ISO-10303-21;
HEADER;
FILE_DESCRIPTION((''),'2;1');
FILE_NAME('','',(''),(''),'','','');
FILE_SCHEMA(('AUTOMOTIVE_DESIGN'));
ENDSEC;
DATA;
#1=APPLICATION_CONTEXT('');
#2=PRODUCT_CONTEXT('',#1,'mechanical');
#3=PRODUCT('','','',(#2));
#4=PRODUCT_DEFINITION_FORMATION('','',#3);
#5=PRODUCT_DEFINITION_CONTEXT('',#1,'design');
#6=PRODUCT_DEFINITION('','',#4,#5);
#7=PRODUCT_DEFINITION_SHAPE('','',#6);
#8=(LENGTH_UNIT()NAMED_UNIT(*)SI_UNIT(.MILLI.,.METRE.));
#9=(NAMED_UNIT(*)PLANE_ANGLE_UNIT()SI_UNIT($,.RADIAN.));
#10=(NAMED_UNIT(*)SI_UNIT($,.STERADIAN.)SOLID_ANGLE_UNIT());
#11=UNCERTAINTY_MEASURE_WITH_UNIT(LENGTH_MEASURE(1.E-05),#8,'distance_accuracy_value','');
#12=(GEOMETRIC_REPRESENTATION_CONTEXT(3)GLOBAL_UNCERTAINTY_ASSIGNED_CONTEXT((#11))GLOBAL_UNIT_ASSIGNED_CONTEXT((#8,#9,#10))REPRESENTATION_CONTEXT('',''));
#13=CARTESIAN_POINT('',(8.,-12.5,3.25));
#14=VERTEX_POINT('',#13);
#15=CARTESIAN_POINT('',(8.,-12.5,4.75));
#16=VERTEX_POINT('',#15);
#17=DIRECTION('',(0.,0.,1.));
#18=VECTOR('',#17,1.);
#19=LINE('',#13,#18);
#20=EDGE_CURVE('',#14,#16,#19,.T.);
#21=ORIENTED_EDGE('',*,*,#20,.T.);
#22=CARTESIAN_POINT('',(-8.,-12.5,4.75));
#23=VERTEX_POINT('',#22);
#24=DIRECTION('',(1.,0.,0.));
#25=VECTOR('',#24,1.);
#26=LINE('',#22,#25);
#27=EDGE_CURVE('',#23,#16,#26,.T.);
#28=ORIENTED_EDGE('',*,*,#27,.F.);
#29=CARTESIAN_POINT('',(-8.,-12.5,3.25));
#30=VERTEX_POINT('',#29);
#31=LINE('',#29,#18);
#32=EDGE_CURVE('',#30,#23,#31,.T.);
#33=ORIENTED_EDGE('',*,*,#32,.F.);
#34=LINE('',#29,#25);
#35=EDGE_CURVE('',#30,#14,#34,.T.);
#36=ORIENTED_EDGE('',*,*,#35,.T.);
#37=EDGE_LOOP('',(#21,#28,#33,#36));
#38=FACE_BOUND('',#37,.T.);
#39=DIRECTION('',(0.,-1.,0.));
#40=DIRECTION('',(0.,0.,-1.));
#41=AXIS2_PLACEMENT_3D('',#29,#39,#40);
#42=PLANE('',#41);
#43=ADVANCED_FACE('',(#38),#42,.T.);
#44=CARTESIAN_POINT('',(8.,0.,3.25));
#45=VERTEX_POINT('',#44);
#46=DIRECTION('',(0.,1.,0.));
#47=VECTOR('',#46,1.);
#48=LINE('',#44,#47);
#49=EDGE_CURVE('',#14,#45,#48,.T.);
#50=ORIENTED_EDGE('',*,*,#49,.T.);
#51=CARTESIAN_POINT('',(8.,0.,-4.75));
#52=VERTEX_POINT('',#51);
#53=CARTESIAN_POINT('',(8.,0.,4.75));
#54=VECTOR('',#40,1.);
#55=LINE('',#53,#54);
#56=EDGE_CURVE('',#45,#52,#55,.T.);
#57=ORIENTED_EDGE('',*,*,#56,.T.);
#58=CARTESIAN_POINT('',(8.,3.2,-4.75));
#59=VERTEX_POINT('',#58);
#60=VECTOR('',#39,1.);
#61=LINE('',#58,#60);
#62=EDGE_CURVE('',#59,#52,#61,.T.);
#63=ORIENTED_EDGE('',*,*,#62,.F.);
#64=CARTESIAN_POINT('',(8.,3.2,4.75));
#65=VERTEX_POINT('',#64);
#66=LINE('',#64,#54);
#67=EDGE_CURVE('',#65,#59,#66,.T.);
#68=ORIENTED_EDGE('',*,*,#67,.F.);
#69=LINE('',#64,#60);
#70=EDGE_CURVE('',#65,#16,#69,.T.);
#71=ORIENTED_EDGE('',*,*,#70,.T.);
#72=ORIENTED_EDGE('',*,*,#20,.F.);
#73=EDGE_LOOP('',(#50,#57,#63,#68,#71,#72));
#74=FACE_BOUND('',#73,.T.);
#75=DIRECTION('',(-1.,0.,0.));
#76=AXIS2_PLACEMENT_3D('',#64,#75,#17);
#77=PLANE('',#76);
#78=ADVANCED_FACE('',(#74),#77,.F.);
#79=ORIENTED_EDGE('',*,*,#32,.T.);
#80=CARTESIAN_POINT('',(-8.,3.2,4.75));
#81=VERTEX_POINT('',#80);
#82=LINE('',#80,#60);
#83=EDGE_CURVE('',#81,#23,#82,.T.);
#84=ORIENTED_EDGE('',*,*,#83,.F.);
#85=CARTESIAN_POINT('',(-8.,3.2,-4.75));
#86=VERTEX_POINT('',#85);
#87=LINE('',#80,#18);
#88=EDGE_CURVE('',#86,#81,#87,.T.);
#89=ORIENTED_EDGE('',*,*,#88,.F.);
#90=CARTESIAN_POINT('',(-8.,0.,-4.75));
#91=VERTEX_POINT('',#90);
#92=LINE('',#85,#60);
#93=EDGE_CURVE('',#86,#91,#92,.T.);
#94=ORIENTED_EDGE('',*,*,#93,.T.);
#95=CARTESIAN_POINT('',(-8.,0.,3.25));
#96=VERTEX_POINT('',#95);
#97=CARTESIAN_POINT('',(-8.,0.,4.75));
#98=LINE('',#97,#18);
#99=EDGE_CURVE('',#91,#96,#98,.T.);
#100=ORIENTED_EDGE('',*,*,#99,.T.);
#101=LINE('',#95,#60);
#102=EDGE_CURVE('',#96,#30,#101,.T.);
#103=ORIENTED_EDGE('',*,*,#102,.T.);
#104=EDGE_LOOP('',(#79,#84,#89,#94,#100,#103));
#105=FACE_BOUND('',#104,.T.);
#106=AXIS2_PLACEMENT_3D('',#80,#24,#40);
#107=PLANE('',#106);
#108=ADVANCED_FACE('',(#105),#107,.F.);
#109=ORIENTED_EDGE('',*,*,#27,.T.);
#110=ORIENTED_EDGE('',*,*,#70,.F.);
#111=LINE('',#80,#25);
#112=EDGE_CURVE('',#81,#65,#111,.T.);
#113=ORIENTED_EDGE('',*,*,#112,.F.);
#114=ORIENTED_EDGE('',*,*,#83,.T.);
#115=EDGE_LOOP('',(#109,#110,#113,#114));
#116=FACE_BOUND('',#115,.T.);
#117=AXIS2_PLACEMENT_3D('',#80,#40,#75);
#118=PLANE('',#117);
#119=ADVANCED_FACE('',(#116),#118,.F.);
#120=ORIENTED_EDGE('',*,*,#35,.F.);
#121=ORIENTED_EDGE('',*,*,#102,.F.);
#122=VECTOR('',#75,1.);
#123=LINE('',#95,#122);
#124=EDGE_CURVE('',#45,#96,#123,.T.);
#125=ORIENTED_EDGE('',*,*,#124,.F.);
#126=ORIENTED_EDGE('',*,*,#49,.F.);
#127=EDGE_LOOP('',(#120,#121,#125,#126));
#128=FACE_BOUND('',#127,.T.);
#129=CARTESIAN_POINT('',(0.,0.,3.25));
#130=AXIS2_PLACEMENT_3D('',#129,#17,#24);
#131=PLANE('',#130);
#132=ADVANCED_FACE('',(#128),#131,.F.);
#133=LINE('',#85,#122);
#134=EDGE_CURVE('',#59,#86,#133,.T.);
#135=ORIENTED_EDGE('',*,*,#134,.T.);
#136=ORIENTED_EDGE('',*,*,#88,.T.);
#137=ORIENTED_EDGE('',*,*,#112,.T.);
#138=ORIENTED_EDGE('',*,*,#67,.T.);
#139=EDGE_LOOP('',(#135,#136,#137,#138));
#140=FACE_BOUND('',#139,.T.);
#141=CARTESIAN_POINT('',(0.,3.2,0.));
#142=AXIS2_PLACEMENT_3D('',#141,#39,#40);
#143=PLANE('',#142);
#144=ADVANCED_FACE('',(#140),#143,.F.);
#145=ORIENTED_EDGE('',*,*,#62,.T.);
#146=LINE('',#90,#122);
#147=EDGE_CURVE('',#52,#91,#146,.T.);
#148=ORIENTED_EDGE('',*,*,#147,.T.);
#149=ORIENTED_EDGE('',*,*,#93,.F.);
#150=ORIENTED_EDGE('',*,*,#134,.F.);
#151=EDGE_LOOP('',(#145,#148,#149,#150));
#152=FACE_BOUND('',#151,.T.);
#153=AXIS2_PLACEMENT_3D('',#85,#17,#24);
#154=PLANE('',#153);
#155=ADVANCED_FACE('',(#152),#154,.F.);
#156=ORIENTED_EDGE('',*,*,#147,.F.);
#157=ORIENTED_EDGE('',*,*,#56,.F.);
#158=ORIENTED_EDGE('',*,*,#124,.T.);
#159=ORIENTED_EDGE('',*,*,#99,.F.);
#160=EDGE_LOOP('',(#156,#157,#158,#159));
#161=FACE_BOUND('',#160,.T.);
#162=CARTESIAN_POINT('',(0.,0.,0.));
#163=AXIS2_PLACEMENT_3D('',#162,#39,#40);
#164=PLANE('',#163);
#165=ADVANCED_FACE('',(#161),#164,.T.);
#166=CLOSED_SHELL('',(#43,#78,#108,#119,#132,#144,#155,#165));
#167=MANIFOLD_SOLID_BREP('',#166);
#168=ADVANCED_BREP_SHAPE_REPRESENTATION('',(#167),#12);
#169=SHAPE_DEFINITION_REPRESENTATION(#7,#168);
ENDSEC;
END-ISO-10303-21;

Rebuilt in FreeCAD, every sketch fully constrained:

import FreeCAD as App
import Part
import Sketcher

V = App.Vector

doc = App.newDocument("Part")
body = doc.addObject("PartDesign::Body", "Body")

sketch1 = doc.addObject("Sketcher::SketchObject", "Sketch")
body.addObject(sketch1)
sketch1.AttachmentSupport = (doc.XZ_Plane, [""])
sketch1.MapMode = "FlatFace"
sketch1.addGeometry(Part.LineSegment(V(-8, -5, 0), V(-8, 5, 0)), False)
sketch1.addGeometry(Part.LineSegment(V(-8, 5, 0), V(8, 5, 0)), False)
sketch1.addGeometry(Part.LineSegment(V(8, 5, 0), V(8, -5, 0)), False)
sketch1.addGeometry(Part.LineSegment(V(8, -5, 0), V(-8, -5, 0)), False)
sketch1.addConstraint(Sketcher.Constraint("Coincident", 0, 2, 1, 1))
sketch1.addConstraint(Sketcher.Constraint("Coincident", 1, 2, 2, 1))
sketch1.addConstraint(Sketcher.Constraint("Coincident", 2, 2, 3, 1))
sketch1.addConstraint(Sketcher.Constraint("Coincident", 3, 2, 0, 1))
sketch1.addConstraint(Sketcher.Constraint("Vertical", 0))
sketch1.addConstraint(Sketcher.Constraint("Horizontal", 1))
sketch1.addConstraint(Sketcher.Constraint("Vertical", 2))
sketch1.addConstraint(Sketcher.Constraint("Horizontal", 3))
sketch1.addConstraint(Sketcher.Constraint("Symmetric", 0, 2, 2, 2, -1, 1))
sketch1.addConstraint(Sketcher.Constraint("DistanceX", 1, 1, 1, 2, 16.0))
sketch1.addConstraint(Sketcher.Constraint("DistanceY", 0, 1, 0, 2, 9.5))
pad1 = doc.addObject("PartDesign::Pad", "Pad")
body.addObject(pad1)
pad1.Profile = sketch1
pad1.Length = 3.2
pad1.Reversed = True

sketch2 = doc.addObject("Sketcher::SketchObject", "Sketch001")
body.addObject(sketch2)
sketch2.AttachmentSupport = (doc.XY_Plane, [""])
sketch2.MapMode = "FlatFace"
sketch2.AttachmentOffset = App.Placement(V(0, 0, 4.75), App.Rotation())
sketch2.addGeometry(Part.LineSegment(V(-8, 0, 0), V(-8, -12, 0)), False)
sketch2.addGeometry(Part.LineSegment(V(-8, -12, 0), V(8, -12, 0)), False)
sketch2.addGeometry(Part.LineSegment(V(8, -12, 0), V(8, 0, 0)), False)
sketch2.addGeometry(Part.LineSegment(V(8, 0, 0), V(-8, 0, 0)), False)
sketch2.addConstraint(Sketcher.Constraint("Coincident", 0, 2, 1, 1))
sketch2.addConstraint(Sketcher.Constraint("Coincident", 1, 2, 2, 1))
sketch2.addConstraint(Sketcher.Constraint("Coincident", 2, 2, 3, 1))
sketch2.addConstraint(Sketcher.Constraint("Coincident", 3, 2, 0, 1))
sketch2.addConstraint(Sketcher.Constraint("Vertical", 0))
sketch2.addConstraint(Sketcher.Constraint("Horizontal", 1))
sketch2.addConstraint(Sketcher.Constraint("Vertical", 2))
sketch2.addConstraint(Sketcher.Constraint("Horizontal", 3))
sketch2.addConstraint(Sketcher.Constraint("Symmetric", 2, 2, 3, 2, -1, 1))
sketch2.addConstraint(Sketcher.Constraint("DistanceX", 1, 1, 1, 2, 16.0))
sketch2.addConstraint(Sketcher.Constraint("DistanceY", 0, 2, 0, 1, 12.5))
pad2 = doc.addObject("PartDesign::Pad", "Pad001")
body.addObject(pad2)
pad2.Profile = sketch2
pad2.Length = 1.5
pad2.Reversed = True

doc.recompute()
